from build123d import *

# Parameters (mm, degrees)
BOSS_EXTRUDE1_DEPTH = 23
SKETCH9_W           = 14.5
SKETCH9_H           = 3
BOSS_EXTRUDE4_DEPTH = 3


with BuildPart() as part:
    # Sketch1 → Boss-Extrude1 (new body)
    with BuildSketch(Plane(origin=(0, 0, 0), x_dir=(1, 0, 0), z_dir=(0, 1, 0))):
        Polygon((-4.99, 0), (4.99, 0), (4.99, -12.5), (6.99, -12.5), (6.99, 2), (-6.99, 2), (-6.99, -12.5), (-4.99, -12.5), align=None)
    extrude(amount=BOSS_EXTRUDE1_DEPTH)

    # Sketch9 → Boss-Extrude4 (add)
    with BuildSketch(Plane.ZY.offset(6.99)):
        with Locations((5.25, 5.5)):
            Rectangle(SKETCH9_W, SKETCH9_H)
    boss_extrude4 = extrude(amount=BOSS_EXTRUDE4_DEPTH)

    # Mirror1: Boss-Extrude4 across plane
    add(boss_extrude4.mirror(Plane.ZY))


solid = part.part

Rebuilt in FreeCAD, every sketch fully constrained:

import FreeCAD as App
import Part
import Sketcher
from FreeCAD import Vector


def add_polygon(sketch, points):
    """Adds a closed chain of lines whose ends are joined by coincident constraints."""
    first, n = sketch.GeometryCount, len(points)
    for a, b in zip(points, points[1:] + points[:1]):
        sketch.addGeometry(Part.LineSegment(App.Vector(*a, 0), App.Vector(*b, 0)), False)
    for i in range(n):
        sketch.addConstraint(Sketcher.Constraint("Coincident", first + i, 2, first + (i + 1) % n, 1))

doc = App.newDocument("Part")
params = doc.addObject("Spreadsheet::Sheet", "Params")
for row, (alias, value) in enumerate([
    ("sketch1_width", "2 mm"),
    ("sketch1_height", "12.5 mm"),
    ("sketch1_height2", "14.5 mm"),
    ("sketch1_width2", "9.98 mm"),
    ("pad1_length", "23 mm"),
    ("sketch2_width", "3 mm"),
    ("sketch2_height", "14.5 mm"),
    ("pad2_length", "3 mm"),
], start=1):
    params.set(f"A{row}", alias)
    params.set(f"B{row}", "=" + value)
    params.setAlias(f"B{row}", alias)

body = doc.addObject("PartDesign::Body", "Body")

# Sketch on XZ plane
sketch1 = body.newObject("Sketcher::SketchObject", "Sketch")
sketch1.AttachmentSupport = (doc.getObject("XZ_Plane"), [""])
sketch1.MapMode = "FlatFace"
add_polygon(sketch1, [(-5, 0), (5, 0), (5, 12.5), (7, 12.5), (7, -2), (-7, -2), (-7, 12.5), (-5, 12.5)])  # lines 0-7
sketch1.addConstraint([
    Sketcher.Constraint("Horizontal", 0),
    Sketcher.Constraint("Vertical", 1),
    Sketcher.Constraint("Horizontal", 2),
    Sketcher.Constraint("Vertical", 3),
    Sketcher.Constraint("Horizontal", 4),
    Sketcher.Constraint("Vertical", 5),
    Sketcher.Constraint("Horizontal", 6),
    Sketcher.Constraint("Vertical", 7),
    Sketcher.Constraint("Symmetric", 0, 2, 7, 2, -1, 1),
    Sketcher.Constraint("Symmetric", 2, 2, 5, 2, -2),
    Sketcher.Constraint("DistanceX", 2, 1, 2, 2, 2.0),
    Sketcher.Constraint("DistanceY", 1, 1, 1, 2, 12.5),
    Sketcher.Constraint("DistanceY", 3, 2, 3, 1, 14.5),
    Sketcher.Constraint("DistanceX", 0, 1, 0, 2, 9.98),
])
sketch1.setExpression("Constraints[18]", "Params.sketch1_width")
sketch1.setExpression("Constraints[19]", "Params.sketch1_height")
sketch1.setExpression("Constraints[20]", "Params.sketch1_height2")
sketch1.setExpression("Constraints[21]", "Params.sketch1_width2")
pad1 = body.newObject("PartDesign::Pad", "Pad")
pad1.Profile = sketch1
pad1.setExpression("Length", "Params.pad1_length")
pad1.Reversed = True

# Sketch on YZ plane
sketch2 = body.newObject("Sketcher::SketchObject", "Sketch001")
sketch2.AttachmentSupport = (doc.getObject("YZ_Plane"), [""])
sketch2.MapMode = "FlatFace"
sketch2.AttachmentOffset = App.Placement(Vector(0, 0, -6.99), App.Rotation())
add_polygon(sketch2, [(7, -2), (4, -2), (4, 12.5), (7, 12.5)])  # lines 0-3
sketch2.addConstraint([
    Sketcher.Constraint("Horizontal", 0),
    Sketcher.Constraint("Vertical", 1),
    Sketcher.Constraint("Horizontal", 2),
    Sketcher.Constraint("Vertical", 3),
    Sketcher.Constraint("DistanceX", 0, 2, 0, 1, 3.0),
    Sketcher.Constraint("DistanceY", 1, 1, 1, 2, 14.5),
    Sketcher.Constraint("DistanceX", -1, 1, 0, 2, 4.0),
    Sketcher.Constraint("DistanceY", 0, 2, -1, 1, 2.0),
])
sketch2.setExpression("Constraints[8]", "Params.sketch2_width")
sketch2.setExpression("Constraints[9]", "Params.sketch2_height")
pad2 = body.newObject("PartDesign::Pad", "Pad001")
pad2.Profile = sketch2
pad2.setExpression("Length", "Params.pad2_length")
pad2.Reversed = True
doc.recompute()

mirrored = body.newObject("PartDesign::Mirrored", "Mirrored")
mirrored.Originals = [pad2]
mirrored.MirrorPlane = (doc.getObject("YZ_Plane"), [""])
body.Tip = mirrored

doc.recompute()
